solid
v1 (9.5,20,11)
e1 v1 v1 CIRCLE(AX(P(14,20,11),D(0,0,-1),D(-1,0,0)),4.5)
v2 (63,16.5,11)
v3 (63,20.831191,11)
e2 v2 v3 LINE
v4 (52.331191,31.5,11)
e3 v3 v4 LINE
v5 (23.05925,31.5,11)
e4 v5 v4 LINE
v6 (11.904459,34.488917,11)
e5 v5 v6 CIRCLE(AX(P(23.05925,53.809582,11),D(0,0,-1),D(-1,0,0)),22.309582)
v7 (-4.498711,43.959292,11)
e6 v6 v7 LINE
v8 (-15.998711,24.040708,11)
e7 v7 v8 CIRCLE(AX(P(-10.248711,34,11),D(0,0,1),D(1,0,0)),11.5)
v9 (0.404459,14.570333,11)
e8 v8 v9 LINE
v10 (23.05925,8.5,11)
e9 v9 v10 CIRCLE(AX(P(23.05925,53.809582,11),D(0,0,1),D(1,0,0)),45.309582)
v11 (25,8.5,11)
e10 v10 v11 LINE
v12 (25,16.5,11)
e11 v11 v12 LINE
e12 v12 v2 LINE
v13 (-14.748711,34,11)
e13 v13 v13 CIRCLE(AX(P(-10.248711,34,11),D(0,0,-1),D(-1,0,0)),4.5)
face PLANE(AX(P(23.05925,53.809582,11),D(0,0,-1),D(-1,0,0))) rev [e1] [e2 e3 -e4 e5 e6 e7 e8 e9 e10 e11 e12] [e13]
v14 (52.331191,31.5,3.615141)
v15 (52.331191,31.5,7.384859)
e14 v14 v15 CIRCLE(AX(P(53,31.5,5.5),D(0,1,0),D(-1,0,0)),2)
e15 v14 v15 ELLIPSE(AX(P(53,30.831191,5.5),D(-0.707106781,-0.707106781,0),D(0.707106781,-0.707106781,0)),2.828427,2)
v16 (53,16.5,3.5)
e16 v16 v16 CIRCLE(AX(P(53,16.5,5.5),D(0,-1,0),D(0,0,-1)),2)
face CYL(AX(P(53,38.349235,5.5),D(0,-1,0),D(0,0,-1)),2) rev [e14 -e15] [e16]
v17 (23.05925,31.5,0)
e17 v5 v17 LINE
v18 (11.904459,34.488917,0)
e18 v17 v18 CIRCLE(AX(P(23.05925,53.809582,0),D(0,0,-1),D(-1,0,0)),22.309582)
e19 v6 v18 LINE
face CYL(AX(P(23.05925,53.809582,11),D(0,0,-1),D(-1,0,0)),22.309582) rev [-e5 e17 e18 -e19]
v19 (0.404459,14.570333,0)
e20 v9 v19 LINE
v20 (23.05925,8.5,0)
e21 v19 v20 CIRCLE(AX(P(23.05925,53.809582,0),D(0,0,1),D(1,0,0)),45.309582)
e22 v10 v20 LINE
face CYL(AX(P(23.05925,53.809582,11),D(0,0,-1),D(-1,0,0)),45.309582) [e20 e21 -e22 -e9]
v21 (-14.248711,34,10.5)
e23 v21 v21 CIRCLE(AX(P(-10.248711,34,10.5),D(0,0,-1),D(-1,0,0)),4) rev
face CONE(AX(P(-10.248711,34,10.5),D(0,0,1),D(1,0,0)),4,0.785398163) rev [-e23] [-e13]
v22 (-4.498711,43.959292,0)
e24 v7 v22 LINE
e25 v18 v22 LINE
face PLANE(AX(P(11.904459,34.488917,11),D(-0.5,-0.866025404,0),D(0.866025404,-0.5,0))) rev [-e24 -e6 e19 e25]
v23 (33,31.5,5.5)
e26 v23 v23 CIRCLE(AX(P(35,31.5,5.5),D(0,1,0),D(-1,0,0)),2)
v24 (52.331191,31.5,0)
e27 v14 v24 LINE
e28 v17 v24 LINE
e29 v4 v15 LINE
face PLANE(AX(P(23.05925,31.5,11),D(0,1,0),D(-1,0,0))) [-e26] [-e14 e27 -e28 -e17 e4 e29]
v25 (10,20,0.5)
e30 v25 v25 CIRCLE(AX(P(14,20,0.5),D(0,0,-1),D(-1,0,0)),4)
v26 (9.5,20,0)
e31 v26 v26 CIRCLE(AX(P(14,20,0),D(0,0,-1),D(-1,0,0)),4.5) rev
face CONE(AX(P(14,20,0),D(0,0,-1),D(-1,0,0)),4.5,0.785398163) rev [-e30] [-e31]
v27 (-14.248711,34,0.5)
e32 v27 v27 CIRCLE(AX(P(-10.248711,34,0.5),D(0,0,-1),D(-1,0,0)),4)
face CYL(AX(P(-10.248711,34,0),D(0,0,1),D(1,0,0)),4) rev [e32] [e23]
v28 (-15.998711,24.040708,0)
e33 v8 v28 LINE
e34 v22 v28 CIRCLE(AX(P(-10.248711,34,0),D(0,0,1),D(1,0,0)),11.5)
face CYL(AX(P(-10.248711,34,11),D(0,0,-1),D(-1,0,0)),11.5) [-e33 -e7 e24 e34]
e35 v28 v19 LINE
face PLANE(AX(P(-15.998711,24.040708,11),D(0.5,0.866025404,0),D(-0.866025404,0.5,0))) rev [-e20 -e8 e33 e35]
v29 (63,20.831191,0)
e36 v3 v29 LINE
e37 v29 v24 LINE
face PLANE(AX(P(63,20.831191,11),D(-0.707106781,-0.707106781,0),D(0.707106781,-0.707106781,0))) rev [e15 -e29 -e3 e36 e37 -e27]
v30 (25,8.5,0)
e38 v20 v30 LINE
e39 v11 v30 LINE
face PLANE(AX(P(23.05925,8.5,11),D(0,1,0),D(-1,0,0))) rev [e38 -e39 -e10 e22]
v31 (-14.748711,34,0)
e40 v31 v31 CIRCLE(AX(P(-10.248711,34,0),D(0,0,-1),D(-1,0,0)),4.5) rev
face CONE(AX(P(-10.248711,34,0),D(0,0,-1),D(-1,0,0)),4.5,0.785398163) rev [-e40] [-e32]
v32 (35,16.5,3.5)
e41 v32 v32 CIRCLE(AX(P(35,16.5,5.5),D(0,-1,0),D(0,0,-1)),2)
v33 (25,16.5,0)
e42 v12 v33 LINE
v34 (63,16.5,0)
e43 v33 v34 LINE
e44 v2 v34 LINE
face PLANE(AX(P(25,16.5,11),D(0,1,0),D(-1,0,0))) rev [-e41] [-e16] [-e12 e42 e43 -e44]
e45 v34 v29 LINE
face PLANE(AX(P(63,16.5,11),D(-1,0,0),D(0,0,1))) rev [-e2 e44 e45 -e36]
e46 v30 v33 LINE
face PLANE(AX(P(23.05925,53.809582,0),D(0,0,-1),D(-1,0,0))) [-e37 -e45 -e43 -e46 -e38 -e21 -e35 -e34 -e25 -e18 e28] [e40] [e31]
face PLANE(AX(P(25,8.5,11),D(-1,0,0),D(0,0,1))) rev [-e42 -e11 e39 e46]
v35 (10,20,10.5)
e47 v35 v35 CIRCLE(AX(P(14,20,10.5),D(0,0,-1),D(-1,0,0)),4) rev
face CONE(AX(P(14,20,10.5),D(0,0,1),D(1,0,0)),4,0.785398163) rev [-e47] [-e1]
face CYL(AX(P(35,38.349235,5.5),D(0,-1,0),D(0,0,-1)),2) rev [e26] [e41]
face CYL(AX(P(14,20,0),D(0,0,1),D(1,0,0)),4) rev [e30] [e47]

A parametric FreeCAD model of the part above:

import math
import FreeCAD as App
import Part
import Sketcher
Q = App.Units.Quantity


def edges_at(feature, points):
    """Names of the edges that pass closest to the given points."""
    edges = feature.Shape.Edges
    near = lambda p: min(range(len(edges)), key=lambda i: edges[i].distToShape(Part.Vertex(*p))[0])
    return sorted({f"Edge{near(p) + 1}" for p in points})

doc = App.newDocument("Part")
body = doc.addObject("PartDesign::Body", "Body")

sketch1 = body.newObject("Sketcher::SketchObject", "Sketch")
sketch1.AttachmentSupport = (doc.getObject("XY_Plane"), [""])
sketch1.MapMode = "FlatFace"
sketch1.addGeometry(Part.LineSegment(App.Vector(52.331191, 31.5, 0), App.Vector(23.05925, 31.5, 0)), False)
sketch1.addGeometry(Part.ArcOfCircle(Part.Circle(App.Vector(23.05925, 53.809582, 0), App.Vector(0, 0, 1), 22.309582), math.radians(-120), math.radians(-90)), False)
sketch1.addGeometry(Part.LineSegment(App.Vector(11.904459, 34.488917, 0), App.Vector(-4.498711, 43.959292, 0)), False)
sketch1.addGeometry(Part.ArcOfCircle(Part.Circle(App.Vector(-10.248711, 34, 0), App.Vector(0, 0, 1), 11.5), math.radians(60), math.radians(240)), False)
sketch1.addGeometry(Part.LineSegment(App.Vector(-15.998711, 24.040708, 0), App.Vector(0.404459, 14.570333, 0)), False)
sketch1.addGeometry(Part.ArcOfCircle(Part.Circle(App.Vector(23.05925, 53.809582, 0), App.Vector(0, 0, 1), 45.309582), math.radians(-120), math.radians(-90)), False)
sketch1.addGeometry(Part.LineSegment(App.Vector(23.05925, 8.5, 0), App.Vector(25, 8.5, 0)), False)
sketch1.addGeometry(Part.LineSegment(App.Vector(25, 8.5, 0), App.Vector(25, 16.5, 0)), False)
sketch1.addGeometry(Part.LineSegment(App.Vector(25, 16.5, 0), App.Vector(63, 16.5, 0)), False)
sketch1.addGeometry(Part.LineSegment(App.Vector(63, 16.5, 0), App.Vector(63, 20.831191, 0)), False)
sketch1.addGeometry(Part.LineSegment(App.Vector(63, 20.831191, 0), App.Vector(52.331191, 31.5, 0)), False)
sketch1.addConstraint(Sketcher.Constraint("Tangent", 0, 2, 1, 2))
sketch1.addConstraint(Sketcher.Constraint("Tangent", 1, 1, 2, 1))
sketch1.addConstraint(Sketcher.Constraint("Tangent", 2, 2, 3, 1))
sketch1.addConstraint(Sketcher.Constraint("Tangent", 3, 2, 4, 1))
sketch1.addConstraint(Sketcher.Constraint("Tangent", 4, 2, 5, 1))
sketch1.addConstraint(Sketcher.Constraint("Tangent", 5, 2, 6, 1))
sketch1.addConstraint(Sketcher.Constraint("Coincident", 6, 2, 7, 1))
sketch1.addConstraint(Sketcher.Constraint("Coincident", 7, 2, 8, 1))
sketch1.addConstraint(Sketcher.Constraint("Coincident", 8, 2, 9, 1))
sketch1.addConstraint(Sketcher.Constraint("Coincident", 9, 2, 10, 1))
sketch1.addConstraint(Sketcher.Constraint("Coincident", 10, 2, 0, 1))
sketch1.addConstraint(Sketcher.Constraint("Horizontal", 0))
sketch1.addConstraint(Sketcher.Constraint("Horizontal", 6))
sketch1.addConstraint(Sketcher.Constraint("Vertical", 7))
sketch1.addConstraint(Sketcher.Constraint("Horizontal", 8))
sketch1.addConstraint(Sketcher.Constraint("Vertical", 9))
sketch1.addConstraint(Sketcher.Constraint("Coincident", 5, 3, 1, 3))
sketch1.addConstraint(Sketcher.Constraint("Parallel", 2, 4))
sketch1.addConstraint(Sketcher.Constraint("Radius", 3, Q("11.5 mm")))
sketch1.addConstraint(Sketcher.Constraint("DistanceX", 8, 1, 8, 2, Q("38 mm")))
sketch1.addConstraint(Sketcher.Constraint("DistanceY", 7, 1, 7, 2, Q("8 mm")))
sketch1.addConstraint(Sketcher.Constraint("Angle", 2, Q("150 deg")))
sketch1.addConstraint(Sketcher.Constraint("Angle", 10, Q("135 deg")))
sketch1.addConstraint(Sketcher.Constraint("DistanceY", -1, 1, 3, 3, Q("34 mm")))
sketch1.addConstraint(Sketcher.Constraint("DistanceX", -1, 1, 6, 2, Q("25 mm")))
sketch1.addConstraint(Sketcher.Constraint("DistanceY", -1, 1, 0, 2, Q("31.5 mm")))
sketch1.addConstraint(Sketcher.Constraint("Radius", 1, Q("22.309582 mm")))
sketch1.addConstraint(Sketcher.Constraint("DistanceX", 0, 2, 0, 1, Q("29.271941 mm")))
sketch1.addConstraint(Sketcher.Constraint("DistanceX", 6, 1, 6, 2, Q("1.94075 mm")))
pad1 = body.newObject("PartDesign::Pad", "Pad")
pad1.Profile = sketch1
pad1.Length = 11

sketch2 = body.newObject("Sketcher::SketchObject", "Sketch001")
sketch2.AttachmentSupport = (doc.getObject("XY_Plane"), [""])
sketch2.MapMode = "FlatFace"
sketch2.AttachmentOffset = App.Placement(App.Vector(0, 0, 11), App.Rotation())
sketch2.addGeometry(Part.Circle(App.Vector(-10.248711, 34, 0), App.Vector(0, 0, 1), 4), False)
sketch2.addConstraint(Sketcher.Constraint("Diameter", 0, Q("8 mm")))
sketch2.addConstraint(Sketcher.Constraint("DistanceY", -1, 1, 0, 3, Q("34 mm")))
sketch2.addConstraint(Sketcher.Constraint("DistanceX", 0, 3, -1, 1, Q("10.248711 mm")))
pocket1 = body.newObject("PartDesign::Pocket", "Pocket")
pocket1.Profile = sketch2
pocket1.Type = "ThroughAll"
doc.recompute()

chamfer = body.newObject("PartDesign::Chamfer", "Chamfer")
chamfer.Base = (pocket1, edges_at(pocket1, [(-14.249, 34, 0), (-14.249, 34, 11)]))
chamfer.Size = 0.5

sketch3 = body.newObject("Sketcher::SketchObject", "Sketch002")
sketch3.AttachmentSupport = (doc.getObject("XY_Plane"), [""])
sketch3.MapMode = "FlatFace"
sketch3.AttachmentOffset = App.Placement(App.Vector(0, 0, 11), App.Rotation())
sketch3.addGeometry(Part.Circle(App.Vector(14, 20, 0), App.Vector(0, 0, 1), 4), False)
sketch3.addConstraint(Sketcher.Constraint("Diameter", 0, Q("8 mm")))
sketch3.addConstraint(Sketcher.Constraint("DistanceX", -1, 1, 0, 3, Q("14 mm")))
sketch3.addConstraint(Sketcher.Constraint("DistanceY", -1, 1, 0, 3, Q("20 mm")))
pocket2 = body.newObject("PartDesign::Pocket", "Pocket001")
pocket2.Profile = sketch3
pocket2.Type = "ThroughAll"
doc.recompute()

chamfer2 = body.newObject("PartDesign::Chamfer", "Chamfer001")
chamfer2.Base = (pocket2, edges_at(pocket2, [(10, 20, 0), (10, 20, 11)]))
chamfer2.Size = 0.5

sketch4 = body.newObject("Sketcher::SketchObject", "Sketch003")
sketch4.AttachmentSupport = (doc.getObject("XZ_Plane"), [""])
sketch4.MapMode = "FlatFace"
sketch4.AttachmentOffset = App.Placement(App.Vector(0, 0, -16.5), App.Rotation())
sketch4.addGeometry(Part.Circle(App.Vector(35, 5.5, 0), App.Vector(0, 0, 1), 2), False)
sketch4.addGeometry(Part.Circle(App.Vector(53, 5.5, 0), App.Vector(0, 0, 1), 2), False)
sketch4.addConstraint(Sketcher.Constraint("Equal", 0, 1))
sketch4.addConstraint(Sketcher.Constraint("Horizontal", 0, 3, 1, 3))
sketch4.addConstraint(Sketcher.Constraint("Diameter", 0, Q("4 mm")))
sketch4.addConstraint(Sketcher.Constraint("DistanceX", -1, 1, 0, 3, Q("35 mm")))
sketch4.addConstraint(Sketcher.Constraint("DistanceX", -1, 1, 1, 3, Q("53 mm")))
sketch4.addConstraint(Sketcher.Constraint("DistanceY", -1, 1, 0, 3, Q("5.5 mm")))
pocket3 = body.newObject("PartDesign::Pocket", "Pocket002")
pocket3.Profile = sketch4
pocket3.Length = 21.849235

doc.recompute()
